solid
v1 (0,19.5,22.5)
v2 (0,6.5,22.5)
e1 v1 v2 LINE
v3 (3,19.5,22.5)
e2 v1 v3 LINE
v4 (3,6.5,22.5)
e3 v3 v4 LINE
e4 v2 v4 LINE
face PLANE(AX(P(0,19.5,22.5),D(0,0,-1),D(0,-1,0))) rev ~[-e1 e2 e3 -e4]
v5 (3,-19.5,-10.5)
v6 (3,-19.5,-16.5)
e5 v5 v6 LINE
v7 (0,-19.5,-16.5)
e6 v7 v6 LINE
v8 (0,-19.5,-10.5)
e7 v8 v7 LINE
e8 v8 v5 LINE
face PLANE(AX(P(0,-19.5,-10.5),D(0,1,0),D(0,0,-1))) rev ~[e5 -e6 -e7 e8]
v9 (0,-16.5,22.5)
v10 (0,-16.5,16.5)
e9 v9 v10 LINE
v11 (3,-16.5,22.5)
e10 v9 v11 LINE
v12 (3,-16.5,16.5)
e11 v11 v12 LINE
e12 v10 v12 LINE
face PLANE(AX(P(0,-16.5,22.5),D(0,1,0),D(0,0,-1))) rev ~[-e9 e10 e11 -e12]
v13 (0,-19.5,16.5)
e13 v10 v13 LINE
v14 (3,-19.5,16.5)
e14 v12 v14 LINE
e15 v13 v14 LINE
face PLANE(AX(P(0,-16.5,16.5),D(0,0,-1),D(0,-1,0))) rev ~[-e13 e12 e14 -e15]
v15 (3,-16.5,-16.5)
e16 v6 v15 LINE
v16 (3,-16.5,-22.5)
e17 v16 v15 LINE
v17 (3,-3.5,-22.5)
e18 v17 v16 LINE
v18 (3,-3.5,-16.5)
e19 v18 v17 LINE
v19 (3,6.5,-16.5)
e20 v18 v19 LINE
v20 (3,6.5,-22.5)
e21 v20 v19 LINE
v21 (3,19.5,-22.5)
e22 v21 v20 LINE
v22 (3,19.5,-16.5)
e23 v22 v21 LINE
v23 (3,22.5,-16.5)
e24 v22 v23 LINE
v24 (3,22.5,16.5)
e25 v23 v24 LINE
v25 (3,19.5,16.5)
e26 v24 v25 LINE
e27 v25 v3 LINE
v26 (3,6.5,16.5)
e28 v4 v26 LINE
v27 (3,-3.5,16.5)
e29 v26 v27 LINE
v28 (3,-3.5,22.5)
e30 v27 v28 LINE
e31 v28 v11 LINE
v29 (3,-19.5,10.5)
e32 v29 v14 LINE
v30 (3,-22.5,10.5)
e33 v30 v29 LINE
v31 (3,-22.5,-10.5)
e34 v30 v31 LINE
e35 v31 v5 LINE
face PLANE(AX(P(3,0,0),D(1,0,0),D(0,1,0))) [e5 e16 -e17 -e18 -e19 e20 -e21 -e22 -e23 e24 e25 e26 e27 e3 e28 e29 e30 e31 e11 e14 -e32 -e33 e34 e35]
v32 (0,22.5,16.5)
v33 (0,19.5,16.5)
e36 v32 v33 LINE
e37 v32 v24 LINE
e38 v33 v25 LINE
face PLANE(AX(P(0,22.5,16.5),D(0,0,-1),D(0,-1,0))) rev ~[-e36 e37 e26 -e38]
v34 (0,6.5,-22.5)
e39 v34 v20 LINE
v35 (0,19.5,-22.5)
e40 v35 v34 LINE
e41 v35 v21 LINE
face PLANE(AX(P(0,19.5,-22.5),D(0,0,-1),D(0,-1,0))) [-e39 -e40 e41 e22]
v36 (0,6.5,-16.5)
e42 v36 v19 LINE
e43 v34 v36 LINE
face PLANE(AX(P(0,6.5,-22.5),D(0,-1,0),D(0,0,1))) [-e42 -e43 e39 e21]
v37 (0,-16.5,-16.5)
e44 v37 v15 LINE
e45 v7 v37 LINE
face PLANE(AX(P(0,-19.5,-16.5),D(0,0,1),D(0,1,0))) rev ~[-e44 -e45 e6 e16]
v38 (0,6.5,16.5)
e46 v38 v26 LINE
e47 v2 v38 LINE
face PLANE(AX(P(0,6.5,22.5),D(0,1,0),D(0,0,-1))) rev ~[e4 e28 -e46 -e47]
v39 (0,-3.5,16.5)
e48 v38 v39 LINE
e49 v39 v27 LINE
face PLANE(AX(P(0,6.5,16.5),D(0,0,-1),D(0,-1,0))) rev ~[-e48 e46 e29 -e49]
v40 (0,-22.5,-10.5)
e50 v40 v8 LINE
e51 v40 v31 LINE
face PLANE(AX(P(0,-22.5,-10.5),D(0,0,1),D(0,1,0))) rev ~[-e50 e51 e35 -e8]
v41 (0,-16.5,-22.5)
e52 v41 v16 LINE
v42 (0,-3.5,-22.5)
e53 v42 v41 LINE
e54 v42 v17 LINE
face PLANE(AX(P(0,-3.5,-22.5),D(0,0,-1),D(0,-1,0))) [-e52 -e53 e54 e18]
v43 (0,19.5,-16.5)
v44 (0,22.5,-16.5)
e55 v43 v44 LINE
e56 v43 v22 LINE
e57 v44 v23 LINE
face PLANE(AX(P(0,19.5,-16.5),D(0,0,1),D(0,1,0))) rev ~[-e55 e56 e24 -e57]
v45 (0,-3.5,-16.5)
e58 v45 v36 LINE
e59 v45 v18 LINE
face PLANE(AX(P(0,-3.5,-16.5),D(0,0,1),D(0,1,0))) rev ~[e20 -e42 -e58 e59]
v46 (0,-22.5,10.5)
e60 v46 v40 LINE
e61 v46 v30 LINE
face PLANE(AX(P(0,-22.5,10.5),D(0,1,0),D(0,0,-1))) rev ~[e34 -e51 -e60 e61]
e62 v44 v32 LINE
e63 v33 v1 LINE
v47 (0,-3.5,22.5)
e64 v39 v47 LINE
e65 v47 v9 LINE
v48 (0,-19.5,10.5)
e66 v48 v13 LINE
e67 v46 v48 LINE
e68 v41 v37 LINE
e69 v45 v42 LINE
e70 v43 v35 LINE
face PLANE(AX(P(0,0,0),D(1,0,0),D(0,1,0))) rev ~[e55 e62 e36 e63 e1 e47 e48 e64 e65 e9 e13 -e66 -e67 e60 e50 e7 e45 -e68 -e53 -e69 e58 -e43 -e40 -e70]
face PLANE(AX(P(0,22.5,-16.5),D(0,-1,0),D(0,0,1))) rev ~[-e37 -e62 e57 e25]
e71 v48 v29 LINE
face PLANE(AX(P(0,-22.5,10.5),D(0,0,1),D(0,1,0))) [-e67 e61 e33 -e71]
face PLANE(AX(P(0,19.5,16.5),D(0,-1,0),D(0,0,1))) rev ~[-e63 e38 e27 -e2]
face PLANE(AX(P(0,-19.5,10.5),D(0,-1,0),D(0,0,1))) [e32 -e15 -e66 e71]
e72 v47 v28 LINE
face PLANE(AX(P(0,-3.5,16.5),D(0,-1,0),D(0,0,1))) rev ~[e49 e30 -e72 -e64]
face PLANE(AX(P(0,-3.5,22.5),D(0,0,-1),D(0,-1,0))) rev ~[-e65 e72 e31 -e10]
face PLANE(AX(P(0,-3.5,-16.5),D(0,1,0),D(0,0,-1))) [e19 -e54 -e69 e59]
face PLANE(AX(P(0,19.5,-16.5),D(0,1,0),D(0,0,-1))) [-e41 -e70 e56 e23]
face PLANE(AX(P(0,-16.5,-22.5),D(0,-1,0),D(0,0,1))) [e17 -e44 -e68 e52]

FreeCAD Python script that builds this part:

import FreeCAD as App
import Part
import Sketcher
from FreeCAD import Vector

doc = App.newDocument("Part")
body = doc.addObject("PartDesign::Body", "Body")

# Sketch on YZ plane
sketch1 = doc.addObject("Sketcher::SketchObject", "Sketch")
body.addObject(sketch1)
sketch1.AttachmentSupport = (doc.YZ_Plane, [""])
sketch1.MapMode = "FlatFace"
sketch1.addGeometry([
    Part.LineSegment(Vector(22.5, -16.5, 0), Vector(22.5, 16.5, 0)),  # 0
    Part.LineSegment(Vector(22.5, 16.5, 0), Vector(19.5, 16.5, 0)),  # 1
    Part.LineSegment(Vector(19.5, 16.5, 0), Vector(19.5, 22.5, 0)),  # 2
    Part.LineSegment(Vector(19.5, 22.5, 0), Vector(6.5, 22.5, 0)),  # 3
    Part.LineSegment(Vector(6.5, 22.5, 0), Vector(6.5, 16.5, 0)),  # 4
    Part.LineSegment(Vector(6.5, 16.5, 0), Vector(-3.5, 16.5, 0)),  # 5
    Part.LineSegment(Vector(-3.5, 16.5, 0), Vector(-3.5, 22.5, 0)),  # 6
    Part.LineSegment(Vector(-3.5, 22.5, 0), Vector(-16.5, 22.5, 0)),  # 7
    Part.LineSegment(Vector(-16.5, 22.5, 0), Vector(-16.5, 16.5, 0)),  # 8
    Part.LineSegment(Vector(-16.5, 16.5, 0), Vector(-19.5, 16.5, 0)),  # 9
    Part.LineSegment(Vector(-19.5, 16.5, 0), Vector(-19.5, 10.5, 0)),  # 10
    Part.LineSegment(Vector(-19.5, 10.5, 0), Vector(-22.5, 10.5, 0)),  # 11
    Part.LineSegment(Vector(-22.5, 10.5, 0), Vector(-22.5, -10.5, 0)),  # 12
    Part.LineSegment(Vector(-22.5, -10.5, 0), Vector(-19.5, -10.5, 0)),  # 13
    Part.LineSegment(Vector(-19.5, -10.5, 0), Vector(-19.5, -16.5, 0)),  # 14
    Part.LineSegment(Vector(-19.5, -16.5, 0), Vector(-16.5, -16.5, 0)),  # 15
    Part.LineSegment(Vector(-16.5, -16.5, 0), Vector(-16.5, -22.5, 0)),  # 16
    Part.LineSegment(Vector(-16.5, -22.5, 0), Vector(-3.5, -22.5, 0)),  # 17
    Part.LineSegment(Vector(-3.5, -22.5, 0), Vector(-3.5, -16.5, 0)),  # 18
    Part.LineSegment(Vector(-3.5, -16.5, 0), Vector(6.5, -16.5, 0)),  # 19
    Part.LineSegment(Vector(6.5, -16.5, 0), Vector(6.5, -22.5, 0)),  # 20
    Part.LineSegment(Vector(6.5, -22.5, 0), Vector(19.5, -22.5, 0)),  # 21
    Part.LineSegment(Vector(19.5, -22.5, 0), Vector(19.5, -16.5, 0)),  # 22
    Part.LineSegment(Vector(19.5, -16.5, 0), Vector(22.5, -16.5, 0)),  # 23
], False)
sketch1.addConstraint([
    Sketcher.Constraint("Coincident", 0, 2, 1, 1),
    Sketcher.Constraint("Coincident", 1, 2, 2, 1),
    Sketcher.Constraint("Coincident", 2, 2, 3, 1),
    Sketcher.Constraint("Coincident", 3, 2, 4, 1),
    Sketcher.Constraint("Coincident", 4, 2, 5, 1),
    Sketcher.Constraint("Coincident", 5, 2, 6, 1),
    Sketcher.Constraint("Coincident", 6, 2, 7, 1),
    Sketcher.Constraint("Coincident", 7, 2, 8, 1),
    Sketcher.Constraint("Coincident", 8, 2, 9, 1),
    Sketcher.Constraint("Coincident", 9, 2, 10, 1),
    Sketcher.Constraint("Coincident", 10, 2, 11, 1),
    Sketcher.Constraint("Coincident", 11, 2, 12, 1),
    Sketcher.Constraint("Coincident", 12, 2, 13, 1),
    Sketcher.Constraint("Coincident", 13, 2, 14, 1),
    Sketcher.Constraint("Coincident", 14, 2, 15, 1),
    Sketcher.Constraint("Coincident", 15, 2, 16, 1),
    Sketcher.Constraint("Coincident", 16, 2, 17, 1),
    Sketcher.Constraint("Coincident", 17, 2, 18, 1),
    Sketcher.Constraint("Coincident", 18, 2, 19, 1),
    Sketcher.Constraint("Coincident", 19, 2, 20, 1),
    Sketcher.Constraint("Coincident", 20, 2, 21, 1),
    Sketcher.Constraint("Coincident", 21, 2, 22, 1),
    Sketcher.Constraint("Coincident", 22, 2, 23, 1),
    Sketcher.Constraint("Coincident", 23, 2, 0, 1),
    Sketcher.Constraint("Vertical", 0),
    Sketcher.Constraint("Horizontal", 1),
    Sketcher.Constraint("Vertical", 2),
    Sketcher.Constraint("Horizontal", 3),
    Sketcher.Constraint("Vertical", 4),
    Sketcher.Constraint("Horizontal", 5),
    Sketcher.Constraint("Vertical", 6),
    Sketcher.Constraint("Horizontal", 7),
    Sketcher.Constraint("Vertical", 8),
    Sketcher.Constraint("Horizontal", 9),
    Sketcher.Constraint("Vertical", 10),
    Sketcher.Constraint("Horizontal", 11),
    Sketcher.Constraint("Vertical", 12),
    Sketcher.Constraint("Horizontal", 13),
    Sketcher.Constraint("Vertical", 14),
    Sketcher.Constraint("Horizontal", 15),
    Sketcher.Constraint("Vertical", 16),
    Sketcher.Constraint("Horizontal", 17),
    Sketcher.Constraint("Vertical", 18),
    Sketcher.Constraint("Horizontal", 19),
    Sketcher.Constraint("Vertical", 20),
    Sketcher.Constraint("Horizontal", 21),
    Sketcher.Constraint("Vertical", 22),
    Sketcher.Constraint("Horizontal", 23),
    Sketcher.Constraint("Symmetric", 1, 2, 14, 2, -1, 1),
    Sketcher.Constraint("Symmetric", 9, 2, 22, 2, -1, 1),
    Sketcher.Constraint("Symmetric", 1, 2, 9, 2, -2),
    Sketcher.Constraint("Symmetric", 7, 2, 16, 2, -1),
    Sketcher.Constraint("Symmetric", 5, 2, 18, 2, -1),
    Sketcher.Constraint("Symmetric", 3, 2, 20, 2, -1),
    Sketcher.Constraint("Horizontal", 1, 2, 4, 2),
    Sketcher.Constraint("Horizontal", 3, 2, 6, 2),
    Sketcher.Constraint("Equal", 3, 7),
    Sketcher.Constraint("Equal", 1, 9),
    Sketcher.Constraint("Equal", 9, 11),
    Sketcher.Constraint("Equal", 8, 10),
    Sketcher.Constraint("Equal", 10, 14),
    Sketcher.Constraint("DistanceX", 1, 2, 1, 1, 3.0),
    Sketcher.Constraint("DistanceX", 3, 2, 3, 1, 13.0),
    Sketcher.Constraint("DistanceX", 5, 2, 5, 1, 10.0),
    Sketcher.Constraint("DistanceY", 0, 1, 0, 2, 33.0),
    Sketcher.Constraint("DistanceY", 2, 1, 2, 2, 6.0),
])
pad1 = doc.addObject("PartDesign::Pad", "Pad")
body.addObject(pad1)
pad1.Profile = sketch1
pad1.Length = 3

doc.recompute()
